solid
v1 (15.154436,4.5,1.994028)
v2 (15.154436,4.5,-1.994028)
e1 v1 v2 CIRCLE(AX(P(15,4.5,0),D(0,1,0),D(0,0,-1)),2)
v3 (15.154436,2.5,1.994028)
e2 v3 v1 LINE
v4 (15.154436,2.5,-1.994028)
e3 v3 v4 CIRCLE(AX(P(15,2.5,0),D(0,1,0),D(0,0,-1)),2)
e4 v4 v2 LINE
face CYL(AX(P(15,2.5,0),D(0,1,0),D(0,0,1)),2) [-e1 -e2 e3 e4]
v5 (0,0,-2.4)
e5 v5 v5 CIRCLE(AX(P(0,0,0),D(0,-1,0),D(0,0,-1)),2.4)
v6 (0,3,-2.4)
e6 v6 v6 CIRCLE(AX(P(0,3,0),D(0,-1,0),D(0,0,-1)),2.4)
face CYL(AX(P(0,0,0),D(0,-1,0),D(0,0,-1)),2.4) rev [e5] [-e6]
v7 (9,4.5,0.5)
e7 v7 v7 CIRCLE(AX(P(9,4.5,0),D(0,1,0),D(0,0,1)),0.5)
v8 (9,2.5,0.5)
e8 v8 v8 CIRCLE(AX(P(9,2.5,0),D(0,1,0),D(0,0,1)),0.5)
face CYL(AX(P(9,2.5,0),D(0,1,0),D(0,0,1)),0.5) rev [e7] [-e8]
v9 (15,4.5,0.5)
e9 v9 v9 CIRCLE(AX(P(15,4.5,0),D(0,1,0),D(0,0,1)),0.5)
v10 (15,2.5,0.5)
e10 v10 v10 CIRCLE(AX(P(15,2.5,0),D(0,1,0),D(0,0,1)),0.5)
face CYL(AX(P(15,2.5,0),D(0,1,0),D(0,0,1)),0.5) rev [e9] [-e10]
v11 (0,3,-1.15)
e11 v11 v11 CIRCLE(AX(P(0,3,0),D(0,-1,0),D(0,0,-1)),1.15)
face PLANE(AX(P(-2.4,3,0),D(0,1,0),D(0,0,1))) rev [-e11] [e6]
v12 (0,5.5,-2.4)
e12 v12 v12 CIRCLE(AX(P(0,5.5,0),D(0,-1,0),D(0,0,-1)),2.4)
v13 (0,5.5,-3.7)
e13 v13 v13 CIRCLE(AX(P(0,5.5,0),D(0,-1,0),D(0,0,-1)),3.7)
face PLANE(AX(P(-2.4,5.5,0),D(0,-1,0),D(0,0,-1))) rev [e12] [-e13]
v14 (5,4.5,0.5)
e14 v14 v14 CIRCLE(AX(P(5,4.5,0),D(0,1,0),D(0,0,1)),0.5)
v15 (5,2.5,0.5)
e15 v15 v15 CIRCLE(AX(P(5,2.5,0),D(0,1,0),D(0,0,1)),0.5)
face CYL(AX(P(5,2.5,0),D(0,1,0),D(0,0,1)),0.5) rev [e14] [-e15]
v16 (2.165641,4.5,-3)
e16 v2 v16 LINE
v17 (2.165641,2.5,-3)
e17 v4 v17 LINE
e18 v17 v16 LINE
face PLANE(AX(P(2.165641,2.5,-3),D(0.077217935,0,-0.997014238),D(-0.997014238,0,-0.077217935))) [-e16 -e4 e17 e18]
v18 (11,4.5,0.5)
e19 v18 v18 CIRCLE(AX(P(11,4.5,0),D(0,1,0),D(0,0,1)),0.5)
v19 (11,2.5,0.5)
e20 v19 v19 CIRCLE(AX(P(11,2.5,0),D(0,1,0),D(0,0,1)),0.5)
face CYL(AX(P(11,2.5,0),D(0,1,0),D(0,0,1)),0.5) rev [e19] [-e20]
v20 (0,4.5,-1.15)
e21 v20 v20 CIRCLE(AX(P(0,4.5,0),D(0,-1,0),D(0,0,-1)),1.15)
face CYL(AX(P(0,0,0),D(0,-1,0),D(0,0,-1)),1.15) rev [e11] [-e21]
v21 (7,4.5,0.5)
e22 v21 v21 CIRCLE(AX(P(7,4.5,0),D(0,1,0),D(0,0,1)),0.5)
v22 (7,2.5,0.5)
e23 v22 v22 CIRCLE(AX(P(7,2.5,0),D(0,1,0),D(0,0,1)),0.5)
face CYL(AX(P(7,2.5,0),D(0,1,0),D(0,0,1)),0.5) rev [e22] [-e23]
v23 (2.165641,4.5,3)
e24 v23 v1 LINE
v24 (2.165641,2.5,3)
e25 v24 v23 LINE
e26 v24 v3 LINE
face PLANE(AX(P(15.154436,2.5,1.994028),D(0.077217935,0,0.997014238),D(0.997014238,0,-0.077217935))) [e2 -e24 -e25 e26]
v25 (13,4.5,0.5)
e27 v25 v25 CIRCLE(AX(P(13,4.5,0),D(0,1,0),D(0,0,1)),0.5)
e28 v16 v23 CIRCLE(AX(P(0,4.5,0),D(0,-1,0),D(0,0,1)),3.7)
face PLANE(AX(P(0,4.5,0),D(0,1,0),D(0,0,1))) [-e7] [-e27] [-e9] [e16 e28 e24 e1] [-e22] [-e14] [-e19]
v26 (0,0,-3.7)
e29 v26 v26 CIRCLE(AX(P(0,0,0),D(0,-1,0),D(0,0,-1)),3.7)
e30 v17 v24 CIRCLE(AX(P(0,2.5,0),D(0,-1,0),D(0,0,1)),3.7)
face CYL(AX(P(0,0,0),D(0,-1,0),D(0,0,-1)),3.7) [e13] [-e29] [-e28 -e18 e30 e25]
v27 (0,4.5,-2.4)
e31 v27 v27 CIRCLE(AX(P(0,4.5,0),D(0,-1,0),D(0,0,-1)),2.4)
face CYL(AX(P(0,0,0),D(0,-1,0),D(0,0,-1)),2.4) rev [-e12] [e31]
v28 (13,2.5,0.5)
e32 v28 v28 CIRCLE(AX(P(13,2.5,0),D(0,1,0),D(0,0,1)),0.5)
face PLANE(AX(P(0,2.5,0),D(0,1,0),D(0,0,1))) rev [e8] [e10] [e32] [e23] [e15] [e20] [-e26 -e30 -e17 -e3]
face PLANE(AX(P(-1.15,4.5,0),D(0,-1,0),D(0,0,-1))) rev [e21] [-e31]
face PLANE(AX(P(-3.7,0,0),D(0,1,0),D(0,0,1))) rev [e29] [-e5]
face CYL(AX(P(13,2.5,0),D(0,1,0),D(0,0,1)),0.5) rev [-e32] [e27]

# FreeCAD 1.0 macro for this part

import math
import FreeCAD as App
import Part
import Sketcher

V = App.Vector
Q = App.Units.Quantity

doc = App.newDocument("Part")
params = doc.addObject("Spreadsheet::Sheet", "Params")
for row, (alias, value) in enumerate([
    ("sketch1_height", "3 mm"),
    ("sketch1_height2", "1 mm"),
    ("sketch1_width", "1.3 mm"),
    ("sketch1_height3", "1.5 mm"),
    ("sketch1_width2", "1.25 mm"),
    ("revolution_angle", "360 deg"),
    ("sketch2_diameter", "1 mm"),
    ("sketch2_radius", "2 mm"),
    ("sketch2_radius2", "3.7 mm"),
    ("pad1_length", "2 mm"),
], start=1):
    params.set(f"A{row}", alias)
    params.set(f"B{row}", "=" + value)
    params.setAlias(f"B{row}", alias)

body = doc.addObject("PartDesign::Body", "Body")

sketch1 = body.newObject("Sketcher::SketchObject", "Sketch")
sketch1.AttachmentSupport = (doc.getObject("XY_Plane"), [""])
sketch1.MapMode = "FlatFace"
sketch1.addGeometry(Part.LineSegment(V(-2.4, 0, 0), V(-2.4, 3, 0)), False)
sketch1.addGeometry(Part.LineSegment(V(-2.4, 3, 0), V(-1.1, 3, 0)), False)
sketch1.addGeometry(Part.LineSegment(V(-1.1, 3, 0), V(-1.1, 4.5, 0)), False)
sketch1.addGeometry(Part.LineSegment(V(-1.1, 4.5, 0), V(-2.4, 4.5, 0)), False)
sketch1.addGeometry(Part.LineSegment(V(-2.4, 4.5, 0), V(-2.4, 5.5, 0)), False)
sketch1.addGeometry(Part.LineSegment(V(-2.4, 5.5, 0), V(-3.7, 5.5, 0)), False)
sketch1.addGeometry(Part.LineSegment(V(-3.7, 5.5, 0), V(-3.7, 0, 0)), False)
sketch1.addGeometry(Part.LineSegment(V(-3.7, 0, 0), V(-2.4, 0, 0)), False)
sketch1.addConstraint(Sketcher.Constraint("Coincident", 0, 2, 1, 1))
sketch1.addConstraint(Sketcher.Constraint("Coincident", 1, 2, 2, 1))
sketch1.addConstraint(Sketcher.Constraint("Coincident", 2, 2, 3, 1))
sketch1.addConstraint(Sketcher.Constraint("Coincident", 3, 2, 4, 1))
sketch1.addConstraint(Sketcher.Constraint("Coincident", 4, 2, 5, 1))
sketch1.addConstraint(Sketcher.Constraint("Coincident", 5, 2, 6, 1))
sketch1.addConstraint(Sketcher.Constraint("Coincident", 6, 2, 7, 1))
sketch1.addConstraint(Sketcher.Constraint("Coincident", 7, 2, 0, 1))
sketch1.addConstraint(Sketcher.Constraint("Vertical", 0))
sketch1.addConstraint(Sketcher.Constraint("Horizontal", 1))
sketch1.addConstraint(Sketcher.Constraint("Vertical", 2))
sketch1.addConstraint(Sketcher.Constraint("Horizontal", 3))
sketch1.addConstraint(Sketcher.Constraint("Vertical", 4))
sketch1.addConstraint(Sketcher.Constraint("Horizontal", 5))
sketch1.addConstraint(Sketcher.Constraint("Vertical", 6))
sketch1.addConstraint(Sketcher.Constraint("Horizontal", 7))
sketch1.addConstraint(Sketcher.Constraint("PointOnObject", 6, 2, -1))
sketch1.addConstraint(Sketcher.Constraint("Vertical", 0, 2, 3, 2))
sketch1.addConstraint(Sketcher.Constraint("DistanceY", 0, 1, 0, 2, Q("3 mm")))
sketch1.addConstraint(Sketcher.Constraint("DistanceY", 4, 1, 4, 2, Q("1 mm")))
sketch1.addConstraint(Sketcher.Constraint("DistanceX", 5, 2, 5, 1, Q("1.3 mm")))
sketch1.addConstraint(Sketcher.Constraint("DistanceY", 2, 1, 2, 2, Q("1.5 mm")))
sketch1.addConstraint(Sketcher.Constraint("DistanceX", 1, 1, 1, 2, Q("1.25 mm")))
sketch1.addConstraint(Sketcher.Constraint("DistanceX", 0, 2, -1, 1, Q("2.4 mm")))
sketch1.setExpression("Constraints[18]", "Params.sketch1_height")
sketch1.setExpression("Constraints[19]", "Params.sketch1_height2")
sketch1.setExpression("Constraints[20]", "Params.sketch1_width")
sketch1.setExpression("Constraints[21]", "Params.sketch1_height3")
sketch1.setExpression("Constraints[22]", "Params.sketch1_width2")
revolution = body.newObject("PartDesign::Revolution", "Revolution")
revolution.Profile = sketch1
revolution.ReferenceAxis = (sketch1, ["V_Axis"])
revolution.setExpression("Angle", "Params.revolution_angle")

sketch2 = body.newObject("Sketcher::SketchObject", "Sketch001")
sketch2.AttachmentSupport = (doc.getObject("XZ_Plane"), [""])
sketch2.MapMode = "FlatFace"
sketch2.AttachmentOffset = App.Placement(V(0, 0, -2.5), App.Rotation())
sketch2.addGeometry(Part.LineSegment(V(15.2, -2, 0), V(2.2, -3, 0)), False)
sketch2.addGeometry(Part.ArcOfCircle(Part.Circle(V(0, 0, 0), V(0, 0, 1), 3.7), math.radians(-54), math.radians(54)), False)
sketch2.addGeometry(Part.LineSegment(V(2.2, 3, 0), V(15.2, 2, 0)), False)
sketch2.addGeometry(Part.ArcOfCircle(Part.Circle(V(15, 0, 0), V(0, 0, 1), 2), math.radians(-86), math.radians(86)), False)
sketch2.addGeometry(Part.Circle(V(15, 0, 0), V(0, 0, 1), 0.5), False)
sketch2.addGeometry(Part.Circle(V(13, 0, 0), V(0, 0, 1), 0.5), False)
sketch2.addGeometry(Part.Circle(V(11, 0, 0), V(0, 0, 1), 0.5), False)
sketch2.addGeometry(Part.Circle(V(9, 0, 0), V(0, 0, 1), 0.5), False)
sketch2.addGeometry(Part.Circle(V(7, 0, 0), V(0, 0, 1), 0.5), False)
sketch2.addGeometry(Part.Circle(V(5, 0, 0), V(0, 0, 1), 0.5), False)
sketch2.addConstraint(Sketcher.Constraint("Coincident", 0, 2, 1, 1))
sketch2.addConstraint(Sketcher.Constraint("Coincident", 1, 2, 2, 1))
sketch2.addConstraint(Sketcher.Constraint("Tangent", 2, 2, 3, 2))
sketch2.addConstraint(Sketcher.Constraint("Tangent", 3, 1, 0, 1))
sketch2.addConstraint(Sketcher.Constraint("Coincident", 1, 3, -1, 1))
sketch2.addConstraint(Sketcher.Constraint("Coincident", 4, 3, 3, 3))
sketch2.addConstraint(Sketcher.Constraint("Equal", 4, 5))
sketch2.addConstraint(Sketcher.Constraint("Equal", 5, 6))
sketch2.addConstraint(Sketcher.Constraint("Equal", 6, 7))
sketch2.addConstraint(Sketcher.Constraint("Equal", 7, 8))
sketch2.addConstraint(Sketcher.Constraint("Equal", 8, 9))
sketch2.addConstraint(Sketcher.Constraint("Symmetric", 2, 2, 3, 1, -1))
sketch2.addConstraint(Sketcher.Constraint("PointOnObject", 5, 3, -1))
sketch2.addConstraint(Sketcher.Constraint("PointOnObject", 6, 3, -1))
sketch2.addConstraint(Sketcher.Constraint("PointOnObject", 7, 3, -1))
sketch2.addConstraint(Sketcher.Constraint("PointOnObject", 8, 3, -1))
sketch2.addConstraint(Sketcher.Constraint("PointOnObject", 9, 3, -1))
sketch2.addConstraint(Sketcher.Constraint("Diameter", 4, Q("1 mm")))
sketch2.addConstraint(Sketcher.Constraint("Radius", 3, Q("2 mm")))
sketch2.addConstraint(Sketcher.Constraint("Radius", 1, Q("3.7 mm")))
sketch2.addConstraint(Sketcher.Constraint("DistanceX", -1, 1, 3, 3, Q("15 mm")))
sketch2.addConstraint(Sketcher.Constraint("DistanceX", -1, 1, 5, 3, Q("13 mm")))
sketch2.addConstraint(Sketcher.Constraint("DistanceX", -1, 1, 6, 3, Q("11 mm")))
sketch2.addConstraint(Sketcher.Constraint("DistanceX", -1, 1, 7, 3, Q("9 mm")))
sketch2.addConstraint(Sketcher.Constraint("DistanceX", -1, 1, 8, 3, Q("7 mm")))
sketch2.addConstraint(Sketcher.Constraint("DistanceX", -1, 1, 9, 3, Q("5 mm")))
sketch2.addConstraint(Sketcher.Constraint("DistanceY", 0, 2, -1, 1, Q("3 mm")))
sketch2.setExpression("Constraints[17]", "Params.sketch2_diameter")
sketch2.setExpression("Constraints[18]", "Params.sketch2_radius")
sketch2.setExpression("Constraints[19]", "Params.sketch2_radius2")
pad1 = body.newObject("PartDesign::Pad", "Pad")
pad1.Profile = sketch2
pad1.setExpression("Length", "Params.pad1_length")
pad1.Reversed = True

doc.recompute()
